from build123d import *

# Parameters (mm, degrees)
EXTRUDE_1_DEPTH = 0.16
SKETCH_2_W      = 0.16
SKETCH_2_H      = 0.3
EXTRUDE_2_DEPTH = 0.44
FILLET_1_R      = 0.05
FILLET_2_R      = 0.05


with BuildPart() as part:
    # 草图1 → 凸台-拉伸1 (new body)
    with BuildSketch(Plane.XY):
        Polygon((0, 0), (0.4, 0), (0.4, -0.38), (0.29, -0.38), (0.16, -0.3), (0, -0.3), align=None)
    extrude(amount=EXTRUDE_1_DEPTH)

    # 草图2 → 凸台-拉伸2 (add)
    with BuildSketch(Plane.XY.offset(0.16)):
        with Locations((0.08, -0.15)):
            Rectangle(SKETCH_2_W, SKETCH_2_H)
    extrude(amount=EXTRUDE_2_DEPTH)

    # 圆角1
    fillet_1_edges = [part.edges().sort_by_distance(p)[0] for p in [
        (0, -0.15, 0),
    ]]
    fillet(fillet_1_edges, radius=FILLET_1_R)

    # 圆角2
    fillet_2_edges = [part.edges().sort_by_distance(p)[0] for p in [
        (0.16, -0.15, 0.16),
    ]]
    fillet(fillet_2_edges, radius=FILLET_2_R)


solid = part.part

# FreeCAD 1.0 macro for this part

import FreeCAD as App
import Part
import Sketcher

V = App.Vector
Q = App.Units.Quantity


def edges_at(feature, points):
    """Names of the edges that pass closest to the given points."""
    edges = feature.Shape.Edges
    near = lambda p: min(range(len(edges)), key=lambda i: edges[i].distToShape(Part.Vertex(*p))[0])
    return sorted({f"Edge{near(p) + 1}" for p in points})

doc = App.newDocument("Part")
body = doc.addObject("PartDesign::Body", "Body")

# Sketch on XY plane
sketch1 = body.newObject("Sketcher::SketchObject", "Sketch")
sketch1.AttachmentSupport = (doc.getObject("XY_Plane"), [""])
sketch1.MapMode = "FlatFace"
sketch1.addGeometry(Part.LineSegment(V(0.4, 0, 0), V(0, 0, 0)), False)
sketch1.addGeometry(Part.LineSegment(V(0, 0, 0), V(0, -0.3, 0)), False)
sketch1.addGeometry(Part.LineSegment(V(0, -0.3, 0), V(0.16, -0.3, 0)), False)
sketch1.addGeometry(Part.LineSegment(V(0.16, -0.3, 0), V(0.29, -0.38, 0)), False)
sketch1.addGeometry(Part.LineSegment(V(0.29, -0.38, 0), V(0.4, -0.38, 0)), False)
sketch1.addGeometry(Part.LineSegment(V(0.4, -0.38, 0), V(0.4, 0, 0)), False)
sketch1.addConstraint(Sketcher.Constraint("Coincident", 0, 2, 1, 1))
sketch1.addConstraint(Sketcher.Constraint("Coincident", 1, 2, 2, 1))
sketch1.addConstraint(Sketcher.Constraint("Coincident", 2, 2, 3, 1))
sketch1.addConstraint(Sketcher.Constraint("Coincident", 3, 2, 4, 1))
sketch1.addConstraint(Sketcher.Constraint("Coincident", 4, 2, 5, 1))
sketch1.addConstraint(Sketcher.Constraint("Coincident", 5, 2, 0, 1))
sketch1.addConstraint(Sketcher.Constraint("Horizontal", 0))
sketch1.addConstraint(Sketcher.Constraint("Vertical", 1))
sketch1.addConstraint(Sketcher.Constraint("Horizontal", 2))
sketch1.addConstraint(Sketcher.Constraint("Horizontal", 4))
sketch1.addConstraint(Sketcher.Constraint("Vertical", 5))
sketch1.addConstraint(Sketcher.Constraint("Coincident", 0, 2, -1, 1))
sketch1.addConstraint(Sketcher.Constraint("DistanceX", 0, 2, 0, 1, Q("0.4 mm")))
sketch1.addConstraint(Sketcher.Constraint("DistanceY", 1, 2, 1, 1, Q("0.3 mm")))
sketch1.addConstraint(Sketcher.Constraint("DistanceX", 2, 1, 2, 2, Q("0.16 mm")))
sketch1.addConstraint(Sketcher.Constraint("DistanceX", 4, 1, 4, 2, Q("0.11 mm")))
sketch1.addConstraint(Sketcher.Constraint("DistanceY", 5, 1, 5, 2, Q("0.38 mm")))
pad1 = body.newObject("PartDesign::Pad", "Pad")
pad1.Profile = sketch1
pad1.Length = 0.16

# Sketch on XY plane
sketch2 = body.newObject("Sketcher::SketchObject", "Sketch001")
sketch2.AttachmentSupport = (doc.getObject("XY_Plane"), [""])
sketch2.MapMode = "FlatFace"
sketch2.AttachmentOffset = App.Placement(V(0, 0, 0.16), App.Rotation())
sketch2.addGeometry(Part.LineSegment(V(0, 0, 0), V(0, -0.3, 0)), False)
sketch2.addGeometry(Part.LineSegment(V(0, -0.3, 0), V(0.16, -0.3, 0)), False)
sketch2.addGeometry(Part.LineSegment(V(0.16, -0.3, 0), V(0.16, 0, 0)), False)
sketch2.addGeometry(Part.LineSegment(V(0.16, 0, 0), V(0, 0, 0)), False)
sketch2.addConstraint(Sketcher.Constraint("Coincident", 0, 2, 1, 1))
sketch2.addConstraint(Sketcher.Constraint("Coincident", 1, 2, 2, 1))
sketch2.addConstraint(Sketcher.Constraint("Coincident", 2, 2, 3, 1))
sketch2.addConstraint(Sketcher.Constraint("Coincident", 3, 2, 0, 1))
sketch2.addConstraint(Sketcher.Constraint("Vertical", 0))
sketch2.addConstraint(Sketcher.Constraint("Horizontal", 1))
sketch2.addConstraint(Sketcher.Constraint("Vertical", 2))
sketch2.addConstraint(Sketcher.Constraint("Horizontal", 3))
sketch2.addConstraint(Sketcher.Constraint("Coincident", 3, 2, -1, 1))
sketch2.addConstraint(Sketcher.Constraint("DistanceY", 0, 2, 0, 1, Q("0.3 mm")))
sketch2.addConstraint(Sketcher.Constraint("DistanceX", 1, 1, 1, 2, Q("0.16 mm")))
pad2 = body.newObject("PartDesign::Pad", "Pad001")
pad2.Profile = sketch2
pad2.Length = 0.44
doc.recompute()

fillet = body.newObject("PartDesign::Fillet", "Fillet")
fillet.Base = (pad2, edges_at(pad2, [(0, -0.15, 0)]))
fillet.Radius = 0.05
doc.recompute()

fillet2 = body.newObject("PartDesign::Fillet", "Fillet001")
fillet2.Base = (fillet, edges_at(fillet, [(0.16, -0.15, 0.16)]))
fillet2.Radius = 0.05

doc.recompute()
